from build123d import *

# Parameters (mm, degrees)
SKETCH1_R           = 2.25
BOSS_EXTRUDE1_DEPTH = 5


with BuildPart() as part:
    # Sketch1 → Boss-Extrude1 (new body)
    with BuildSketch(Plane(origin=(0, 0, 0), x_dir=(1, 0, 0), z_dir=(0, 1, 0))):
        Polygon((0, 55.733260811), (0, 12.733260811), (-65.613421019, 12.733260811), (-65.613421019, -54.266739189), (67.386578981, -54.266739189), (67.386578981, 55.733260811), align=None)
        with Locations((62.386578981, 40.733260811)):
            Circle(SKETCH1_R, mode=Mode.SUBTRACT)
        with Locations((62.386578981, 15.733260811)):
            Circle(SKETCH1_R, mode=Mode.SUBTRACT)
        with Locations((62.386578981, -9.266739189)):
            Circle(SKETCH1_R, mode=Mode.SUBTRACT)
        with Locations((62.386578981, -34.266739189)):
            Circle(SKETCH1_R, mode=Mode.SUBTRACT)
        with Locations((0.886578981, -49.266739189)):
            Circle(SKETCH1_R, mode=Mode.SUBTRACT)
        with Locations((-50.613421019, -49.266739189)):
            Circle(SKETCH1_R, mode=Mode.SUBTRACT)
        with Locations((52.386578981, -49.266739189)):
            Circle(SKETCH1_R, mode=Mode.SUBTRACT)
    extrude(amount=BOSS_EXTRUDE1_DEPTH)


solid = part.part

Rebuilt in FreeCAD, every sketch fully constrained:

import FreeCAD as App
import Part
import Sketcher


def add_polygon(sketch, points):
    """Adds a closed chain of lines whose ends are joined by coincident constraints."""
    first, n = sketch.GeometryCount, len(points)
    for a, b in zip(points, points[1:] + points[:1]):
        sketch.addGeometry(Part.LineSegment(App.Vector(*a, 0), App.Vector(*b, 0)), False)
    for i in range(n):
        sketch.addConstraint(Sketcher.Constraint("Coincident", first + i, 2, first + (i + 1) % n, 1))

doc = App.newDocument("Part")
body = doc.addObject("PartDesign::Body", "Body")

# Sketch on XZ plane
sketch1 = doc.addObject("Sketcher::SketchObject", "Sketch")
body.addObject(sketch1)
sketch1.AttachmentSupport = (doc.XZ_Plane, [""])
sketch1.MapMode = "FlatFace"
add_polygon(sketch1, [(0, -55.7), (0, -12.7), (-65.6, -12.7), (-65.6, 54.3), (67.4, 54.3), (67.4, -55.7)])  # lines 0-5
sketch1.addGeometry(Part.Circle(App.Vector(-50.6, 49.3, 0), App.Vector(0, 0, 1), 2.2), False)  # 6
sketch1.addGeometry(Part.Circle(App.Vector(0.9, 49.3, 0), App.Vector(0, 0, 1), 2.2), False)  # 7
sketch1.addGeometry(Part.Circle(App.Vector(52.4, 49.3, 0), App.Vector(0, 0, 1), 2.2), False)  # 8
sketch1.addGeometry(Part.Circle(App.Vector(62.4, 34.3, 0), App.Vector(0, 0, 1), 2.2), False)  # 9
sketch1.addGeometry(Part.Circle(App.Vector(62.4, 9.3, 0), App.Vector(0, 0, 1), 2.2), False)  # 10
sketch1.addGeometry(Part.Circle(App.Vector(62.4, -15.7, 0), App.Vector(0, 0, 1), 2.2), False)  # 11
sketch1.addGeometry(Part.Circle(App.Vector(62.4, -40.7, 0), App.Vector(0, 0, 1), 2.2), False)  # 12
sketch1.addConstraint(Sketcher.Constraint("Vertical", 0))
sketch1.addConstraint(Sketcher.Constraint("Horizontal", 1))
sketch1.addConstraint(Sketcher.Constraint("Vertical", 2))
sketch1.addConstraint(Sketcher.Constraint("Horizontal", 3))
sketch1.addConstraint(Sketcher.Constraint("Vertical", 4))
sketch1.addConstraint(Sketcher.Constraint("Horizontal", 5))
sketch1.addConstraint(Sketcher.Constraint("Equal", 6, 7))
sketch1.addConstraint(Sketcher.Constraint("Equal", 7, 8))
sketch1.addConstraint(Sketcher.Constraint("Equal", 8, 9))
sketch1.addConstraint(Sketcher.Constraint("Equal", 9, 10))
sketch1.addConstraint(Sketcher.Constraint("Equal", 10, 11))
sketch1.addConstraint(Sketcher.Constraint("Equal", 11, 12))
sketch1.addConstraint(Sketcher.Constraint("PointOnObject", 0, 2, -2))
sketch1.addConstraint(Sketcher.Constraint("Horizontal", 6, 3, 7, 3))
sketch1.addConstraint(Sketcher.Constraint("Horizontal", 7, 3, 8, 3))
sketch1.addConstraint(Sketcher.Constraint("Vertical", 9, 3, 10, 3))
sketch1.addConstraint(Sketcher.Constraint("Vertical", 10, 3, 11, 3))
sketch1.addConstraint(Sketcher.Constraint("Vertical", 11, 3, 12, 3))
sketch1.addConstraint(Sketcher.Constraint("Diameter", 6, 4.5))
sketch1.addConstraint(Sketcher.Constraint("DistanceX", 3, 1, 3, 2, 133.0))
sketch1.addConstraint(Sketcher.Constraint("DistanceY", 0, 1, 0, 2, 43.0))
sketch1.addConstraint(Sketcher.Constraint("DistanceY", 2, 1, 2, 2, 67.0))
sketch1.addConstraint(Sketcher.Constraint("DistanceX", 6, 3, 8, 3, 103.0))
sketch1.addConstraint(Sketcher.Constraint("DistanceX", 8, 3, 9, 3, 10.0))
sketch1.addConstraint(Sketcher.Constraint("DistanceY", 9, 3, 8, 3, 15.0))
sketch1.addConstraint(Sketcher.Constraint("DistanceY", 10, 3, 9, 3, 25.0))
sketch1.addConstraint(Sketcher.Constraint("DistanceY", 11, 3, 10, 3, 25.0))
sketch1.addConstraint(Sketcher.Constraint("DistanceY", 12, 3, 11, 3, 25.0))
sketch1.addConstraint(Sketcher.Constraint("DistanceY", 0, 2, 7, 3, 62.0))
sketch1.addConstraint(Sketcher.Constraint("DistanceX", 1, 2, 6, 3, 15.0))
sketch1.addConstraint(Sketcher.Constraint("DistanceX", 6, 3, 7, 3, 51.5))
sketch1.addConstraint(Sketcher.Constraint("DistanceX", 1, 2, 1, 1, 65.613421))
sketch1.addConstraint(Sketcher.Constraint("DistanceY", -1, 1, 6, 3, 49.266739))
pad1 = doc.addObject("PartDesign::Pad", "Pad")
body.addObject(pad1)
pad1.Profile = sketch1
pad1.Length = 5
pad1.Reversed = True

doc.recompute()
